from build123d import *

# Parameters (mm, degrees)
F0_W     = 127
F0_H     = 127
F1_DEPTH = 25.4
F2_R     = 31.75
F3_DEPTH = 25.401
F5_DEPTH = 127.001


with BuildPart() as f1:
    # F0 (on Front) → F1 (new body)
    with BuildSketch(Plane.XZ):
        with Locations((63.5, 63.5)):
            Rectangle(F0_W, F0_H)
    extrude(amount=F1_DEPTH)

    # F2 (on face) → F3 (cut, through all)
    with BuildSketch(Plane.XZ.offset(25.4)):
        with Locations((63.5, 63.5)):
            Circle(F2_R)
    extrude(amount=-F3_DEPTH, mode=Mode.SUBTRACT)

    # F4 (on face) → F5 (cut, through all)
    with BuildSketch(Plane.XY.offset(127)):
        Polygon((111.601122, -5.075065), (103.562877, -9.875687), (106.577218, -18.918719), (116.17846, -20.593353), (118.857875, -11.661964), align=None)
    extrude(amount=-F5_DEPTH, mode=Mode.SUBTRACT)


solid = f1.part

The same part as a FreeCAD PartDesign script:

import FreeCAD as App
import Part
import Sketcher
Q = App.Units.Quantity

doc = App.newDocument("Part")
body = doc.addObject("PartDesign::Body", "Body")

# Sketch on XZ plane
sketch1 = body.newObject("Sketcher::SketchObject", "Sketch")
sketch1.AttachmentSupport = (doc.getObject("XZ_Plane"), [""])
sketch1.MapMode = "FlatFace"
sketch1.addGeometry(Part.LineSegment(App.Vector(0, 127, 0), App.Vector(0, 0, 0)), False)
sketch1.addGeometry(Part.LineSegment(App.Vector(0, 0, 0), App.Vector(127, 0, 0)), False)
sketch1.addGeometry(Part.LineSegment(App.Vector(127, 0, 0), App.Vector(127, 127, 0)), False)
sketch1.addGeometry(Part.LineSegment(App.Vector(127, 127, 0), App.Vector(0, 127, 0)), False)
sketch1.addConstraint(Sketcher.Constraint("Coincident", 0, 2, 1, 1))
sketch1.addConstraint(Sketcher.Constraint("Coincident", 1, 2, 2, 1))
sketch1.addConstraint(Sketcher.Constraint("Coincident", 2, 2, 3, 1))
sketch1.addConstraint(Sketcher.Constraint("Coincident", 3, 2, 0, 1))
sketch1.addConstraint(Sketcher.Constraint("Vertical", 0))
sketch1.addConstraint(Sketcher.Constraint("Horizontal", 1))
sketch1.addConstraint(Sketcher.Constraint("Vertical", 2))
sketch1.addConstraint(Sketcher.Constraint("Horizontal", 3))
sketch1.addConstraint(Sketcher.Constraint("Coincident", 0, 2, -1, 1))
sketch1.addConstraint(Sketcher.Constraint("Equal", 3, 0))
sketch1.addConstraint(Sketcher.Constraint("DistanceX", 1, 1, 1, 2, Q("5 in")))
pad1 = body.newObject("PartDesign::Pad", "Pad")
pad1.Profile = sketch1
pad1.Length = Q("1 in")

# Sketch on XZ plane
sketch2 = body.newObject("Sketcher::SketchObject", "Sketch001")
sketch2.AttachmentSupport = (doc.getObject("XZ_Plane"), [""])
sketch2.MapMode = "FlatFace"
sketch2.AttachmentOffset = App.Placement(App.Vector(0, 0, 1 * 25.4), App.Rotation())
sketch2.addGeometry(Part.Circle(App.Vector(64, 64, 0), App.Vector(0, 0, 1), 32), False)
sketch2.addConstraint(Sketcher.Constraint("Diameter", 0, Q("2.5 in")))
sketch2.addConstraint(Sketcher.Constraint("DistanceX", -1, 1, 0, 3, Q("2.5 in")))
sketch2.addConstraint(Sketcher.Constraint("DistanceY", -1, 1, 0, 3, Q("2.5 in")))
pocket1 = body.newObject("PartDesign::Pocket", "Pocket")
pocket1.Profile = sketch2
pocket1.Type = "ThroughAll"

# Sketch on XY plane
sketch3 = body.newObject("Sketcher::SketchObject", "Sketch002")
sketch3.AttachmentSupport = (doc.getObject("XY_Plane"), [""])
sketch3.MapMode = "FlatFace"
sketch3.AttachmentOffset = App.Placement(App.Vector(0, 0, 5 * 25.4), App.Rotation())
sketch3.addGeometry(Part.LineSegment(App.Vector(112, -5, 0), App.Vector(104, -10, 0)), False)
sketch3.addGeometry(Part.LineSegment(App.Vector(104, -10, 0), App.Vector(107, -19, 0)), False)
sketch3.addGeometry(Part.LineSegment(App.Vector(107, -19, 0), App.Vector(116, -21, 0)), False)
sketch3.addGeometry(Part.LineSegment(App.Vector(116, -21, 0), App.Vector(119, -12, 0)), False)
sketch3.addGeometry(Part.LineSegment(App.Vector(119, -12, 0), App.Vector(112, -5, 0)), False)
sketch3.addConstraint(Sketcher.Constraint("Coincident", 0, 2, 1, 1))
sketch3.addConstraint(Sketcher.Constraint("Coincident", 1, 2, 2, 1))
sketch3.addConstraint(Sketcher.Constraint("Coincident", 2, 2, 3, 1))
sketch3.addConstraint(Sketcher.Constraint("Coincident", 3, 2, 4, 1))
sketch3.addConstraint(Sketcher.Constraint("Coincident", 4, 2, 0, 1))
sketch3.addConstraint(Sketcher.Constraint("DistanceX", 0, 2, 3, 2, Q("15.294998 mm")))
sketch3.addConstraint(Sketcher.Constraint("DistanceY", 3, 2, 4, 2, Q("6.586899 mm")))
sketch3.addConstraint(Sketcher.Constraint("Distance", 1, Q("9.532192 mm")))
sketch3.addConstraint(Sketcher.Constraint("Distance", 2, Q("9.746191 mm")))
sketch3.addConstraint(Sketcher.Constraint("DistanceX", -1, 1, 1, 2, Q("106.577218 mm")))
sketch3.addConstraint(Sketcher.Constraint("DistanceY", 1, 2, -1, 1, Q("18.918719 mm")))
sketch3.addConstraint(Sketcher.Constraint("DistanceX", -1, 1, 2, 2, Q("116.17846 mm")))
sketch3.addConstraint(Sketcher.Constraint("DistanceX", 0, 2, 1, 2, Q("3.014341 mm")))
sketch3.addConstraint(Sketcher.Constraint("DistanceY", 2, 2, 3, 2, Q("8.931389 mm")))
sketch3.addConstraint(Sketcher.Constraint("Distance", 0, Q("9.362657 mm")))
pocket2 = body.newObject("PartDesign::Pocket", "Pocket001")
pocket2.Profile = sketch3
pocket2.Type = "ThroughAll"

doc.recompute()
